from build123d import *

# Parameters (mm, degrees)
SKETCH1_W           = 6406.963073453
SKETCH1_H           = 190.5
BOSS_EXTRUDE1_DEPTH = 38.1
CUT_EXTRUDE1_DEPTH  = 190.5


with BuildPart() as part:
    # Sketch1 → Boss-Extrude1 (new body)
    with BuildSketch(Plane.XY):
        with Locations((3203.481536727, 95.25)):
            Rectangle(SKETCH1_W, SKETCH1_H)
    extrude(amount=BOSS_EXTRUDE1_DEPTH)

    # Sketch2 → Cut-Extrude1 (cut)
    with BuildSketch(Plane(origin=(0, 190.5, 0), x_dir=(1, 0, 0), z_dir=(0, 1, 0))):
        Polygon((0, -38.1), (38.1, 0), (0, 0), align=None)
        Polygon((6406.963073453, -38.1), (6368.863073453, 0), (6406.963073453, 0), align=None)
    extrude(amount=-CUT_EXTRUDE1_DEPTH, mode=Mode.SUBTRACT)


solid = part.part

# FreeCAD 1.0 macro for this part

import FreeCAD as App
import Part
import Sketcher
Q = App.Units.Quantity


def add_polygon(sketch, points):
    """Adds a closed chain of lines whose ends are joined by coincident constraints."""
    first, n = sketch.GeometryCount, len(points)
    for a, b in zip(points, points[1:] + points[:1]):
        sketch.addGeometry(Part.LineSegment(App.Vector(*a, 0), App.Vector(*b, 0)), False)
    for i in range(n):
        sketch.addConstraint(Sketcher.Constraint("Coincident", first + i, 2, first + (i + 1) % n, 1))

doc = App.newDocument("Part")
body = doc.addObject("PartDesign::Body", "Body")

# Sketch on XY plane
sketch1 = doc.addObject("Sketcher::SketchObject", "Sketch")
body.addObject(sketch1)
sketch1.AttachmentSupport = (doc.XY_Plane, [""])
sketch1.MapMode = "FlatFace"
add_polygon(sketch1, [(0, 190), (0, 0), (6407, 0), (6407, 190)])  # lines 0-3
sketch1.addConstraint([
    Sketcher.Constraint("Vertical", 0),
    Sketcher.Constraint("Horizontal", 1),
    Sketcher.Constraint("Vertical", 2),
    Sketcher.Constraint("Horizontal", 3),
    Sketcher.Constraint("Coincident", 0, 2, -1, 1),
    Sketcher.Constraint("DistanceY", 0, 2, 0, 1, Q("7.5 in")),
    Sketcher.Constraint("DistanceX", 1, 1, 1, 2, 6406.963073),
])
pad1 = doc.addObject("PartDesign::Pad", "Pad")
body.addObject(pad1)
pad1.Profile = sketch1
pad1.Length = Q("1.5 in")

# Sketch on XZ plane
sketch2 = doc.addObject("Sketcher::SketchObject", "Sketch001")
body.addObject(sketch2)
sketch2.AttachmentSupport = (doc.XZ_Plane, [""])
sketch2.MapMode = "FlatFace"
sketch2.AttachmentOffset = App.Placement(App.Vector(0, 0, -7.5 * 25.4), App.Rotation())
add_polygon(sketch2, [(0, 38), (38, 0), (0, 0)])  # lines 0-2
add_polygon(sketch2, [(6369, 0), (6407, 38), (6407, 0)])  # lines 3-5
sketch2.addConstraint([
    Sketcher.Constraint("Horizontal", 1),
    Sketcher.Constraint("Vertical", 2),
    Sketcher.Constraint("Vertical", 4),
    Sketcher.Constraint("Horizontal", 5),
    Sketcher.Constraint("Coincident", 1, 2, -1, 1),
    Sketcher.Constraint("PointOnObject", 4, 2, -1),
    Sketcher.Constraint("Perpendicular", 0, 3),
    Sketcher.Constraint("Horizontal", 2, 2, 3, 2),
    Sketcher.Constraint("Equal", 1, 5),
    Sketcher.Constraint("DistanceX", 1, 2, 1, 1, Q("1.5 in")),
    Sketcher.Constraint("DistanceX", -1, 1, 3, 2, 6406.963073),
])
pocket1 = doc.addObject("PartDesign::Pocket", "Pocket")
body.addObject(pocket1)
pocket1.Profile = sketch2
pocket1.Length = Q("7.5 in")
pocket1.Reversed = True

doc.recompute()
